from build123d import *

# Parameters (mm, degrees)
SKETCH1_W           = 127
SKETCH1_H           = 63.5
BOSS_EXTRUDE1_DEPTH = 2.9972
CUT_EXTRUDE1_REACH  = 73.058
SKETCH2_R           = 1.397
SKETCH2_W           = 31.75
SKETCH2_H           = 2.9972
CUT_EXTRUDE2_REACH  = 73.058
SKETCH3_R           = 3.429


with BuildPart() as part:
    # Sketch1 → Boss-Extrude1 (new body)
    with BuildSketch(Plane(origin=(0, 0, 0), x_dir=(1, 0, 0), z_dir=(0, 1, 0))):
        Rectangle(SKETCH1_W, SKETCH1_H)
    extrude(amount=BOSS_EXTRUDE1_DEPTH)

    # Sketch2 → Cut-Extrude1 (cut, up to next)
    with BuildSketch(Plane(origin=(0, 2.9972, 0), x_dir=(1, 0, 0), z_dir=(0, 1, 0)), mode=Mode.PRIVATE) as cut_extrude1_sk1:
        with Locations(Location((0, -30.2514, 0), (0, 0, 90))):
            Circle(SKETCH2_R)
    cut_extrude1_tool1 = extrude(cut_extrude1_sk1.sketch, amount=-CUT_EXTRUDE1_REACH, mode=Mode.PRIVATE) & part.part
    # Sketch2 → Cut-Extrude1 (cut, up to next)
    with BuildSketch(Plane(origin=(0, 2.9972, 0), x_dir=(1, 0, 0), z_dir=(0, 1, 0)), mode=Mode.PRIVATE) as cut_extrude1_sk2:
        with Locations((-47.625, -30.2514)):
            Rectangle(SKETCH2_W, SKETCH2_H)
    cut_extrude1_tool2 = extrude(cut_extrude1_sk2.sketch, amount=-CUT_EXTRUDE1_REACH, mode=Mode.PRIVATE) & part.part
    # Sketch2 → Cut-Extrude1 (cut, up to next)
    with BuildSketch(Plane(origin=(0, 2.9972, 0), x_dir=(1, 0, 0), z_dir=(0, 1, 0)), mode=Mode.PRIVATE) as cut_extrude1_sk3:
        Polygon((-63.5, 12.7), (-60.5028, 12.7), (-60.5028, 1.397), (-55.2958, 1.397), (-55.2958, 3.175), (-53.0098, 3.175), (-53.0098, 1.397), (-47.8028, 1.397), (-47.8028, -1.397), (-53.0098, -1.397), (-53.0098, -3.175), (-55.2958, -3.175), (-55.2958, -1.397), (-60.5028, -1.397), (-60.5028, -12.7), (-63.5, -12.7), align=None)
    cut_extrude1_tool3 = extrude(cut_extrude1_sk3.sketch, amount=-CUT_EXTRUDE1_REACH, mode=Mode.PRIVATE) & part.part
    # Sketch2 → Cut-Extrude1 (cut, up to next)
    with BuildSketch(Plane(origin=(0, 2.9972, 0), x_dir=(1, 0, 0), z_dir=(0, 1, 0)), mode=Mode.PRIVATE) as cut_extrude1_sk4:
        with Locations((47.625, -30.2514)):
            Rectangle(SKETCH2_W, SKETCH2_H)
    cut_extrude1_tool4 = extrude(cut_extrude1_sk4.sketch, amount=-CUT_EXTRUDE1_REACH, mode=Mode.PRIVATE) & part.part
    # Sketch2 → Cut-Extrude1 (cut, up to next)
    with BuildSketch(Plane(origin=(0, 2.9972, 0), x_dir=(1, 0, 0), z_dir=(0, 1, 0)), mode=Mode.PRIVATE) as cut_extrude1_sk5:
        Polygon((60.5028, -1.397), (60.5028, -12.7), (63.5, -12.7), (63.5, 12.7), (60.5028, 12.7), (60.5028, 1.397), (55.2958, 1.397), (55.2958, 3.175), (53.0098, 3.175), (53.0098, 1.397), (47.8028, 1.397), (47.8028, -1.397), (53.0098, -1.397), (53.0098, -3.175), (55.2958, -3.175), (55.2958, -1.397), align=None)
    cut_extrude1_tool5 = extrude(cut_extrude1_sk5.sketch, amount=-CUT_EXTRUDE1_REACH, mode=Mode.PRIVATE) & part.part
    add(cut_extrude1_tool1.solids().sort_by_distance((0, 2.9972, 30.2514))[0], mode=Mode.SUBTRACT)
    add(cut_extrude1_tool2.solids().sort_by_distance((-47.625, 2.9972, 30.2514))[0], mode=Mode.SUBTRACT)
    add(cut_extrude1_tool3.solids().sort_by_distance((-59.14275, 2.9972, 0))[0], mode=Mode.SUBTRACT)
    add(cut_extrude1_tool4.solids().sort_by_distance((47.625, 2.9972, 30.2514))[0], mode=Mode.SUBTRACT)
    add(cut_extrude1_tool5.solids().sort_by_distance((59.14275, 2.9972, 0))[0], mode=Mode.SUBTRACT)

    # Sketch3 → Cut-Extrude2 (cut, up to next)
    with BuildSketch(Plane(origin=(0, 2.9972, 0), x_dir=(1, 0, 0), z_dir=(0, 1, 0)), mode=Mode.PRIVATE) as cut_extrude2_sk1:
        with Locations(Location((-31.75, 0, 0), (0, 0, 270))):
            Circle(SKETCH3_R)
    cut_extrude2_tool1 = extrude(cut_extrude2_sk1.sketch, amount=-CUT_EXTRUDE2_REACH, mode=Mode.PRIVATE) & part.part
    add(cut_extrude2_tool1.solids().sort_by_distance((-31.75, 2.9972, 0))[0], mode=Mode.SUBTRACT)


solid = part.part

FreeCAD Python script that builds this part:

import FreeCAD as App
import Part
import Sketcher

V = App.Vector
Q = App.Units.Quantity


def add_polygon(sketch, points):
    """Adds a closed chain of lines whose ends are joined by coincident constraints."""
    first, n = sketch.GeometryCount, len(points)
    for a, b in zip(points, points[1:] + points[:1]):
        sketch.addGeometry(Part.LineSegment(App.Vector(*a, 0), App.Vector(*b, 0)), False)
    for i in range(n):
        sketch.addConstraint(Sketcher.Constraint("Coincident", first + i, 2, first + (i + 1) % n, 1))

doc = App.newDocument("Part")
params = doc.addObject("Spreadsheet::Sheet", "Params")
for row, (alias, value) in enumerate([
    ("sketch1_width", "5 in"),
    ("sketch1_height", "2.5 in"),
    ("pad1_length", "0.118 in"),
    ("sketch2_diameter", "0.11 in"),
    ("sketch3_width", "1.25 in"),
    ("sketch3_height", "0.118 in"),
    ("sketch4_height", "1 in"),
    ("sketch4_width", "0.09 in"),
    ("sketch4_height2", "0.07 in"),
    ("sketch4_height3", "0.11 in"),
    ("sketch4_width2", "0.118 in"),
    ("sketch5_width", "1.25 in"),
    ("sketch5_height", "0.118 in"),
    ("sketch6_height", "1 in"),
    ("sketch6_width", "0.09 in"),
    ("sketch6_height2", "0.07 in"),
    ("sketch6_height3", "0.11 in"),
    ("sketch6_width2", "0.118 in"),
    ("sketch7_diameter", "0.27 in"),
], start=1):
    params.set(f"A{row}", alias)
    params.set(f"B{row}", "=" + value)
    params.setAlias(f"B{row}", alias)

body = doc.addObject("PartDesign::Body", "Body")

sketch1 = body.newObject("Sketcher::SketchObject", "Sketch")
sketch1.AttachmentSupport = (doc.getObject("XZ_Plane"), [""])
sketch1.MapMode = "FlatFace"
add_polygon(sketch1, [(-64, -32), (-64, 32), (64, 32), (64, -32)])
sketch1.addConstraint(Sketcher.Constraint("Vertical", 0))
sketch1.addConstraint(Sketcher.Constraint("Horizontal", 1))
sketch1.addConstraint(Sketcher.Constraint("Vertical", 2))
sketch1.addConstraint(Sketcher.Constraint("Horizontal", 3))
sketch1.addConstraint(Sketcher.Constraint("Symmetric", 0, 2, 2, 2, -1, 1))
sketch1.addConstraint(Sketcher.Constraint("DistanceX", 1, 1, 1, 2, Q("5 in")))
sketch1.addConstraint(Sketcher.Constraint("DistanceY", 0, 1, 0, 2, Q("2.5 in")))
sketch1.setExpression("Constraints[9]", "Params.sketch1_width")
sketch1.setExpression("Constraints[10]", "Params.sketch1_height")
pad1 = body.newObject("PartDesign::Pad", "Pad")
pad1.Profile = sketch1
pad1.setExpression("Length", "Params.pad1_length")
pad1.Reversed = True

sketch2 = body.newObject("Sketcher::SketchObject", "Sketch001")
sketch2.AttachmentSupport = (doc.getObject("XZ_Plane"), [""])
sketch2.MapMode = "FlatFace"
sketch2.AttachmentOffset = App.Placement(V(0, 0, -0.118 * 25.4), App.Rotation())
sketch2.addGeometry(Part.Circle(V(0, 30.3, 0), V(0, 0, 1), 1.4), False)
sketch2.addConstraint(Sketcher.Constraint("PointOnObject", 0, 3, -2))
sketch2.addConstraint(Sketcher.Constraint("Diameter", 0, Q("0.11 in")))
sketch2.addConstraint(Sketcher.Constraint("DistanceY", -1, 1, 0, 3, Q("1.191 in")))
sketch2.setExpression("Constraints[1]", "Params.sketch2_diameter")
pocket1 = body.newObject("PartDesign::Pocket", "Pocket")
pocket1.Profile = sketch2
pocket1.Type = "UpToFirst"
pocket1.Reversed = True

sketch3 = body.newObject("Sketcher::SketchObject", "Sketch002")
sketch3.AttachmentSupport = (doc.getObject("XZ_Plane"), [""])
sketch3.MapMode = "FlatFace"
sketch3.AttachmentOffset = App.Placement(V(0, 0, -0.118 * 25.4), App.Rotation())
add_polygon(sketch3, [(-63.5, 28.8), (-63.5, 31.8), (-31.8, 31.8), (-31.8, 28.8)])
sketch3.addConstraint(Sketcher.Constraint("Vertical", 0))
sketch3.addConstraint(Sketcher.Constraint("Horizontal", 1))
sketch3.addConstraint(Sketcher.Constraint("Vertical", 2))
sketch3.addConstraint(Sketcher.Constraint("Horizontal", 3))
sketch3.addConstraint(Sketcher.Constraint("DistanceX", 1, 1, 1, 2, Q("1.25 in")))
sketch3.addConstraint(Sketcher.Constraint("DistanceX", 0, 2, -1, 1, Q("2.5 in")))
sketch3.addConstraint(Sketcher.Constraint("DistanceY", 0, 1, 0, 2, Q("0.118 in")))
sketch3.addConstraint(Sketcher.Constraint("DistanceY", -1, 1, 0, 2, Q("1.25 in")))
sketch3.setExpression("Constraints[8]", "Params.sketch3_width")
sketch3.setExpression("Constraints[10]", "Params.sketch3_height")
pocket2 = body.newObject("PartDesign::Pocket", "Pocket001")
pocket2.Profile = sketch3
pocket2.Type = "UpToFirst"
pocket2.Reversed = True

sketch4 = body.newObject("Sketcher::SketchObject", "Sketch003")
sketch4.AttachmentSupport = (doc.getObject("XZ_Plane"), [""])
sketch4.MapMode = "FlatFace"
sketch4.AttachmentOffset = App.Placement(V(0, 0, -0.118 * 25.4), App.Rotation())
add_polygon(sketch4, [(-60.5, -12.7), (-63.5, -12.7), (-63.5, 12.7), (-60.5, 12.7), (-60.5, 1.4), (-55.3, 1.4), (-55.3, 3.2), (-53, 3.2), (-53, 1.4), (-47.8, 1.4), (-47.8, -1.4), (-53, -1.4), (-53, -3.2), (-55.3, -3.2), (-55.3, -1.4), (-60.5, -1.4)])
sketch4.addConstraint(Sketcher.Constraint("Horizontal", 0))
sketch4.addConstraint(Sketcher.Constraint("Vertical", 1))
sketch4.addConstraint(Sketcher.Constraint("Horizontal", 2))
sketch4.addConstraint(Sketcher.Constraint("Vertical", 3))
sketch4.addConstraint(Sketcher.Constraint("Horizontal", 4))
sketch4.addConstraint(Sketcher.Constraint("Vertical", 5))
sketch4.addConstraint(Sketcher.Constraint("Horizontal", 6))
sketch4.addConstraint(Sketcher.Constraint("Vertical", 7))
sketch4.addConstraint(Sketcher.Constraint("Horizontal", 8))
sketch4.addConstraint(Sketcher.Constraint("Vertical", 9))
sketch4.addConstraint(Sketcher.Constraint("Horizontal", 10))
sketch4.addConstraint(Sketcher.Constraint("Vertical", 11))
sketch4.addConstraint(Sketcher.Constraint("Horizontal", 12))
sketch4.addConstraint(Sketcher.Constraint("Vertical", 13))
sketch4.addConstraint(Sketcher.Constraint("Horizontal", 14))
sketch4.addConstraint(Sketcher.Constraint("Vertical", 15))
sketch4.addConstraint(Sketcher.Constraint("Symmetric", 7, 2, 10, 2, -1))
sketch4.addConstraint(Sketcher.Constraint("Symmetric", 5, 2, 12, 2, -1))
sketch4.addConstraint(Sketcher.Constraint("Symmetric", 3, 2, 14, 2, -1))
sketch4.addConstraint(Sketcher.Constraint("Horizontal", 4, 2, 7, 2))
sketch4.addConstraint(Sketcher.Constraint("Equal", 4, 8))
sketch4.addConstraint(Sketcher.Constraint("Equal", 3, 15))
sketch4.addConstraint(Sketcher.Constraint("DistanceY", 1, 1, 1, 2, Q("1 in")))
sketch4.addConstraint(Sketcher.Constraint("DistanceX", 6, 1, 6, 2, Q("0.09 in")))
sketch4.addConstraint(Sketcher.Constraint("DistanceY", 5, 1, 5, 2, Q("0.07 in")))
sketch4.addConstraint(Sketcher.Constraint("DistanceY", 9, 2, 9, 1, Q("0.11 in")))
sketch4.addConstraint(Sketcher.Constraint("DistanceX", 0, 2, -1, 1, Q("2.5 in")))
sketch4.addConstraint(Sketcher.Constraint("DistanceX", 3, 2, 8, 2, Q("0.5 in")))
sketch4.addConstraint(Sketcher.Constraint("DistanceX", 0, 2, 0, 1, Q("0.118 in")))
sketch4.setExpression("Constraints[38]", "Params.sketch4_height")
sketch4.setExpression("Constraints[39]", "Params.sketch4_width")
sketch4.setExpression("Constraints[40]", "Params.sketch4_height2")
sketch4.setExpression("Constraints[41]", "Params.sketch4_height3")
sketch4.setExpression("Constraints[44]", "Params.sketch4_width2")
pocket3 = body.newObject("PartDesign::Pocket", "Pocket002")
pocket3.Profile = sketch4
pocket3.Type = "UpToFirst"
pocket3.Reversed = True

sketch5 = body.newObject("Sketcher::SketchObject", "Sketch004")
sketch5.AttachmentSupport = (doc.getObject("XZ_Plane"), [""])
sketch5.MapMode = "FlatFace"
sketch5.AttachmentOffset = App.Placement(V(0, 0, -0.118 * 25.4), App.Rotation())
add_polygon(sketch5, [(31.8, 28.8), (31.8, 31.8), (63.5, 31.8), (63.5, 28.8)])
sketch5.addConstraint(Sketcher.Constraint("Vertical", 0))
sketch5.addConstraint(Sketcher.Constraint("Horizontal", 1))
sketch5.addConstraint(Sketcher.Constraint("Vertical", 2))
sketch5.addConstraint(Sketcher.Constraint("Horizontal", 3))
sketch5.addConstraint(Sketcher.Constraint("DistanceX", 1, 1, 1, 2, Q("1.25 in")))
sketch5.addConstraint(Sketcher.Constraint("DistanceX", -1, 1, 1, 2, Q("2.5 in")))
sketch5.addConstraint(Sketcher.Constraint("DistanceY", 0, 1, 0, 2, Q("0.118 in")))
sketch5.addConstraint(Sketcher.Constraint("DistanceY", -1, 1, 0, 2, Q("1.25 in")))
sketch5.setExpression("Constraints[8]", "Params.sketch5_width")
sketch5.setExpression("Constraints[10]", "Params.sketch5_height")
pocket4 = body.newObject("PartDesign::Pocket", "Pocket003")
pocket4.Profile = sketch5
pocket4.Type = "UpToFirst"
pocket4.Reversed = True

sketch6 = body.newObject("Sketcher::SketchObject", "Sketch005")
sketch6.AttachmentSupport = (doc.getObject("XZ_Plane"), [""])
sketch6.MapMode = "FlatFace"
sketch6.AttachmentOffset = App.Placement(V(0, 0, -0.118 * 25.4), App.Rotation())
add_polygon(sketch6, [(60.5, 1.4), (60.5, 12.7), (63.5, 12.7), (63.5, -12.7), (60.5, -12.7), (60.5, -1.4), (55.3, -1.4), (55.3, -3.2), (53, -3.2), (53, -1.4), (47.8, -1.4), (47.8, 1.4), (53, 1.4), (53, 3.2), (55.3, 3.2), (55.3, 1.4)])
sketch6.addConstraint(Sketcher.Constraint("Vertical", 0))
sketch6.addConstraint(Sketcher.Constraint("Horizontal", 1))
sketch6.addConstraint(Sketcher.Constraint("Vertical", 2))
sketch6.addConstraint(Sketcher.Constraint("Horizontal", 3))
sketch6.addConstraint(Sketcher.Constraint("Vertical", 4))
sketch6.addConstraint(Sketcher.Constraint("Horizontal", 5))
sketch6.addConstraint(Sketcher.Constraint("Vertical", 6))
sketch6.addConstraint(Sketcher.Constraint("Horizontal", 7))
sketch6.addConstraint(Sketcher.Constraint("Vertical", 8))
sketch6.addConstraint(Sketcher.Constraint("Horizontal", 9))
sketch6.addConstraint(Sketcher.Constraint("Vertical", 10))
sketch6.addConstraint(Sketcher.Constraint("Horizontal", 11))
sketch6.addConstraint(Sketcher.Constraint("Vertical", 12))
sketch6.addConstraint(Sketcher.Constraint("Horizontal", 13))
sketch6.addConstraint(Sketcher.Constraint("Vertical", 14))
sketch6.addConstraint(Sketcher.Constraint("Horizontal", 15))
sketch6.addConstraint(Sketcher.Constraint("Symmetric", 0, 2, 3, 2, -1))
sketch6.addConstraint(Sketcher.Constraint("Symmetric", 8, 2, 11, 2, -1))
sketch6.addConstraint(Sketcher.Constraint("Symmetric", 6, 2, 13, 2, -1))
sketch6.addConstraint(Sketcher.Constraint("Horizontal", 5, 2, 8, 2))
sketch6.addConstraint(Sketcher.Constraint("Horizontal", 11, 2, 14, 2))
sketch6.addConstraint(Sketcher.Constraint("Equal", 5, 9))
sketch6.addConstraint(Sketcher.Constraint("DistanceY", 2, 2, 2, 1, Q("1 in")))
sketch6.addConstraint(Sketcher.Constraint("DistanceX", 7, 2, 7, 1, Q("0.09 in")))
sketch6.addConstraint(Sketcher.Constraint("DistanceY", 6, 2, 6, 1, Q("0.07 in")))
sketch6.addConstraint(Sketcher.Constraint("DistanceY", 10, 1, 10, 2, Q("0.11 in")))
sketch6.addConstraint(Sketcher.Constraint("DistanceX", -1, 1, 1, 2, Q("2.5 in")))
sketch6.addConstraint(Sketcher.Constraint("DistanceX", 9, 2, 4, 2, Q("0.5 in")))
sketch6.addConstraint(Sketcher.Constraint("DistanceX", 1, 1, 1, 2, Q("0.118 in")))
sketch6.setExpression("Constraints[38]", "Params.sketch6_height")
sketch6.setExpression("Constraints[39]", "Params.sketch6_width")
sketch6.setExpression("Constraints[40]", "Params.sketch6_height2")
sketch6.setExpression("Constraints[41]", "Params.sketch6_height3")
sketch6.setExpression("Constraints[44]", "Params.sketch6_width2")
pocket5 = body.newObject("PartDesign::Pocket", "Pocket004")
pocket5.Profile = sketch6
pocket5.Type = "UpToFirst"
pocket5.Reversed = True

sketch7 = body.newObject("Sketcher::SketchObject", "Sketch006")
sketch7.AttachmentSupport = (doc.getObject("XZ_Plane"), [""])
sketch7.MapMode = "FlatFace"
sketch7.AttachmentOffset = App.Placement(V(0, 0, -0.118 * 25.4), App.Rotation())
sketch7.addGeometry(Part.Circle(V(-31.8, 0, 0), V(0, 0, 1), 3.4), False)
sketch7.addConstraint(Sketcher.Constraint("PointOnObject", 0, 3, -1))
sketch7.addConstraint(Sketcher.Constraint("Diameter", 0, Q("0.27 in")))
sketch7.addConstraint(Sketcher.Constraint("DistanceX", 0, 3, -1, 1, Q("1.25 in")))
sketch7.setExpression("Constraints[1]", "Params.sketch7_diameter")
pocket6 = body.newObject("PartDesign::Pocket", "Pocket005")
pocket6.Profile = sketch7
pocket6.Type = "UpToFirst"
pocket6.Reversed = True

doc.recompute()
